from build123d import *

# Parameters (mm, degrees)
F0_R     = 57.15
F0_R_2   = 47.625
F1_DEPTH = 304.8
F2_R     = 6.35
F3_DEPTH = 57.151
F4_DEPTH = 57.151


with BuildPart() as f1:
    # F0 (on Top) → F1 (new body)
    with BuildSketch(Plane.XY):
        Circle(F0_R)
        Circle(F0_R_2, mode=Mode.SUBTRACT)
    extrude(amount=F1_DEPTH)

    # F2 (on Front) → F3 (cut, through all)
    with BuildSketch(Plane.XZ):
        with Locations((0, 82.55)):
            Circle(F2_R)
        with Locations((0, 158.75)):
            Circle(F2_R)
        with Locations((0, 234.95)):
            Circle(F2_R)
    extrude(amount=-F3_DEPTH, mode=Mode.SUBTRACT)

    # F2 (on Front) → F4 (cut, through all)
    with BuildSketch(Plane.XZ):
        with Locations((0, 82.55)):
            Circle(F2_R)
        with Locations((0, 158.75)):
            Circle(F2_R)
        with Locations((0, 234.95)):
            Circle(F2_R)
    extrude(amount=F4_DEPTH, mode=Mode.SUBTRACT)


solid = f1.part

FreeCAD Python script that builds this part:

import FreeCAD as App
import Part
import Sketcher
from FreeCAD import Vector
Q = App.Units.Quantity

doc = App.newDocument("Part")
body = doc.addObject("PartDesign::Body", "Body")

# Sketch on XY plane
sketch1 = body.newObject("Sketcher::SketchObject", "Sketch")
sketch1.AttachmentSupport = (doc.getObject("XY_Plane"), [""])
sketch1.MapMode = "FlatFace"
sketch1.addGeometry([
    Part.Circle(Vector(0, 0, 0), Vector(0, 0, 1), 57),
    Part.Circle(Vector(0, 0, 0), Vector(0, 0, 1), 48),
], False)
sketch1.addConstraint([
    Sketcher.Constraint("Coincident", 0, 3, -1, 1),
    Sketcher.Constraint("Coincident", 1, 3, -1, 1),
    Sketcher.Constraint("Diameter", 0, Q("4.5 in")),
    Sketcher.Constraint("Diameter", 1, Q("3.75 in")),
])
pad1 = body.newObject("PartDesign::Pad", "Pad")
pad1.Profile = sketch1
pad1.Length = Q("12 in")

# Sketch on XZ plane
sketch2 = body.newObject("Sketcher::SketchObject", "Sketch001")
sketch2.AttachmentSupport = (doc.getObject("XZ_Plane"), [""])
sketch2.MapMode = "FlatFace"
sketch2.addGeometry([
    Part.Circle(Vector(0, 83, 0), Vector(0, 0, 1), 6),
    Part.Circle(Vector(0, 159, 0), Vector(0, 0, 1), 6),
    Part.Circle(Vector(0, 235, 0), Vector(0, 0, 1), 6),
], False)
sketch2.addConstraint([
    Sketcher.Constraint("Equal", 0, 1),
    Sketcher.Constraint("Equal", 1, 2),
    Sketcher.Constraint("PointOnObject", 0, 3, -2),
    Sketcher.Constraint("PointOnObject", 1, 3, -2),
    Sketcher.Constraint("PointOnObject", 2, 3, -2),
    Sketcher.Constraint("Diameter", 0, Q("0.5 in")),
    Sketcher.Constraint("DistanceY", 0, 3, 1, 3, Q("3 in")),
    Sketcher.Constraint("DistanceY", 1, 3, 2, 3, Q("3 in")),
    Sketcher.Constraint("DistanceY", -1, 1, 0, 3, Q("3.25 in")),
])
pocket1 = body.newObject("PartDesign::Pocket", "Pocket")
pocket1.Profile = sketch2
pocket1.Type = "ThroughAll"

# Sketch on XZ plane
sketch3 = body.newObject("Sketcher::SketchObject", "Sketch002")
sketch3.AttachmentSupport = (doc.getObject("XZ_Plane"), [""])
sketch3.MapMode = "FlatFace"
sketch3.addGeometry([
    Part.Circle(Vector(0, 83, 0), Vector(0, 0, 1), 6),
    Part.Circle(Vector(0, 159, 0), Vector(0, 0, 1), 6),
    Part.Circle(Vector(0, 235, 0), Vector(0, 0, 1), 6),
], False)
sketch3.addConstraint([
    Sketcher.Constraint("Equal", 0, 1),
    Sketcher.Constraint("Equal", 1, 2),
    Sketcher.Constraint("PointOnObject", 0, 3, -2),
    Sketcher.Constraint("PointOnObject", 1, 3, -2),
    Sketcher.Constraint("PointOnObject", 2, 3, -2),
    Sketcher.Constraint("Diameter", 0, Q("0.5 in")),
    Sketcher.Constraint("DistanceY", 0, 3, 1, 3, Q("3 in")),
    Sketcher.Constraint("DistanceY", 1, 3, 2, 3, Q("3 in")),
    Sketcher.Constraint("DistanceY", -1, 1, 0, 3, Q("3.25 in")),
])
pocket2 = body.newObject("PartDesign::Pocket", "Pocket001")
pocket2.Profile = sketch3
pocket2.Type = "ThroughAll"
pocket2.Reversed = True

doc.recompute()
